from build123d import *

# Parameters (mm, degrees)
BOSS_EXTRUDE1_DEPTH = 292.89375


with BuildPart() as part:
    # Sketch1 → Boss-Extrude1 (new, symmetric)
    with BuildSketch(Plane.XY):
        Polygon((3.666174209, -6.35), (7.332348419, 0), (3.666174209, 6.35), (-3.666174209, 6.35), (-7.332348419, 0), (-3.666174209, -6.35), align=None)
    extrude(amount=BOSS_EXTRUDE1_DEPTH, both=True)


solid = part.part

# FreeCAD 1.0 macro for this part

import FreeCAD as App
import Part
import Sketcher

V = App.Vector
Q = App.Units.Quantity


def add_polygon(sketch, points):
    """Adds a closed chain of lines whose ends are joined by coincident constraints."""
    first, n = sketch.GeometryCount, len(points)
    for a, b in zip(points, points[1:] + points[:1]):
        sketch.addGeometry(Part.LineSegment(App.Vector(*a, 0), App.Vector(*b, 0)), False)
    for i in range(n):
        sketch.addConstraint(Sketcher.Constraint("Coincident", first + i, 2, first + (i + 1) % n, 1))

doc = App.newDocument("Part")
params = doc.addObject("Spreadsheet::Sheet", "Params")
for row, (alias, value) in enumerate([
    ("pad1_length", "23.0625 in"),
], start=1):
    params.set(f"A{row}", alias)
    params.set(f"B{row}", "=" + value)
    params.setAlias(f"B{row}", alias)

body = doc.addObject("PartDesign::Body", "Body")

sketch1 = doc.addObject("Sketcher::SketchObject", "Sketch")
body.addObject(sketch1)
sketch1.AttachmentSupport = (doc.XY_Plane, [""])
sketch1.MapMode = "FlatFace"
add_polygon(sketch1, [(4, -6), (7, 0), (4, 6), (-4, 6), (-7, 0), (-4, -6)])
sketch1.addConstraint([
    Sketcher.Constraint("Horizontal", 2),
    Sketcher.Constraint("Horizontal", 5),
    Sketcher.Constraint("Symmetric", 0, 2, 3, 2, -1, 1),
    Sketcher.Constraint("Symmetric", 1, 2, 4, 2, -1, 1),
    Sketcher.Constraint("PointOnObject", 0, 2, -1),
    Sketcher.Constraint("Parallel", 0, 3),
    Sketcher.Constraint("Vertical", 2, 2, 4, 2),
    Sketcher.Constraint("Angle", 0, Q("60 deg")),
    Sketcher.Constraint("DistanceY", 4, 2, 2, 2, Q("0.5 in")),
    Sketcher.Constraint("DistanceX", 2, 2, 2, 1, Q("7.332348 mm")),
])
pad1 = doc.addObject("PartDesign::Pad", "Pad")
body.addObject(pad1)
pad1.Profile = sketch1
pad1.setExpression("Length", "Params.pad1_length")
pad1.Midplane = True

doc.recompute()
